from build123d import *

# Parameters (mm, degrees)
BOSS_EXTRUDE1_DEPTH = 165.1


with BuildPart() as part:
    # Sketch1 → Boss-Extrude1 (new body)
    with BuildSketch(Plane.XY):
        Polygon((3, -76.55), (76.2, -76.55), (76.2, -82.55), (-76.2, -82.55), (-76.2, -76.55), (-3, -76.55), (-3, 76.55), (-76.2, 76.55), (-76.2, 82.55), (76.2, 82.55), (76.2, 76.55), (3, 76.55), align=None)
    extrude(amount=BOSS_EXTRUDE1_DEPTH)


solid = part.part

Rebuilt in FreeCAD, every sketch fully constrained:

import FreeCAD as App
import Part
import Sketcher
from FreeCAD import Vector

doc = App.newDocument("Part")
body = doc.addObject("PartDesign::Body", "Body")

sketch1 = body.newObject("Sketcher::SketchObject", "Sketch")
sketch1.AttachmentSupport = (doc.getObject("XY_Plane"), [""])
sketch1.MapMode = "FlatFace"
sketch1.addGeometry([
    Part.LineSegment(Vector(76, -77, 0), Vector(3, -77, 0)),
    Part.LineSegment(Vector(3, -77, 0), Vector(3, 77, 0)),
    Part.LineSegment(Vector(3, 77, 0), Vector(76, 77, 0)),
    Part.LineSegment(Vector(76, 77, 0), Vector(76, 83, 0)),
    Part.LineSegment(Vector(76, 83, 0), Vector(-76, 83, 0)),
    Part.LineSegment(Vector(-76, 83, 0), Vector(-76, 77, 0)),
    Part.LineSegment(Vector(-76, 77, 0), Vector(-3, 77, 0)),
    Part.LineSegment(Vector(-3, 77, 0), Vector(-3, -77, 0)),
    Part.LineSegment(Vector(-3, -77, 0), Vector(-76, -77, 0)),
    Part.LineSegment(Vector(-76, -77, 0), Vector(-76, -83, 0)),
    Part.LineSegment(Vector(-76, -83, 0), Vector(76, -83, 0)),
    Part.LineSegment(Vector(76, -83, 0), Vector(76, -77, 0)),
], False)
sketch1.addConstraint([
    Sketcher.Constraint("Coincident", 0, 2, 1, 1),
    Sketcher.Constraint("Coincident", 1, 2, 2, 1),
    Sketcher.Constraint("Coincident", 2, 2, 3, 1),
    Sketcher.Constraint("Coincident", 3, 2, 4, 1),
    Sketcher.Constraint("Coincident", 4, 2, 5, 1),
    Sketcher.Constraint("Coincident", 5, 2, 6, 1),
    Sketcher.Constraint("Coincident", 6, 2, 7, 1),
    Sketcher.Constraint("Coincident", 7, 2, 8, 1),
    Sketcher.Constraint("Coincident", 8, 2, 9, 1),
    Sketcher.Constraint("Coincident", 9, 2, 10, 1),
    Sketcher.Constraint("Coincident", 10, 2, 11, 1),
    Sketcher.Constraint("Coincident", 11, 2, 0, 1),
    Sketcher.Constraint("Horizontal", 0),
    Sketcher.Constraint("Vertical", 1),
    Sketcher.Constraint("Horizontal", 2),
    Sketcher.Constraint("Vertical", 3),
    Sketcher.Constraint("Horizontal", 4),
    Sketcher.Constraint("Vertical", 5),
    Sketcher.Constraint("Horizontal", 6),
    Sketcher.Constraint("Vertical", 7),
    Sketcher.Constraint("Horizontal", 8),
    Sketcher.Constraint("Vertical", 9),
    Sketcher.Constraint("Horizontal", 10),
    Sketcher.Constraint("Vertical", 11),
    Sketcher.Constraint("Symmetric", 0, 2, 6, 2, -1, 1),
    Sketcher.Constraint("Symmetric", 2, 2, 8, 2, -1, 1),
    Sketcher.Constraint("Symmetric", 4, 2, 10, 2, -1, 1),
    Sketcher.Constraint("Symmetric", 2, 2, 5, 2, -2),
    Sketcher.Constraint("DistanceY", 3, 1, 3, 2, 6.0),
    Sketcher.Constraint("DistanceX", 0, 2, 0, 1, 73.2),
    Sketcher.Constraint("DistanceX", 4, 2, 4, 1, 152.4),
    Sketcher.Constraint("DistanceY", 1, 1, 1, 2, 153.1),
])
pad1 = body.newObject("PartDesign::Pad", "Pad")
pad1.Profile = sketch1
pad1.Length = 165.1

doc.recompute()
